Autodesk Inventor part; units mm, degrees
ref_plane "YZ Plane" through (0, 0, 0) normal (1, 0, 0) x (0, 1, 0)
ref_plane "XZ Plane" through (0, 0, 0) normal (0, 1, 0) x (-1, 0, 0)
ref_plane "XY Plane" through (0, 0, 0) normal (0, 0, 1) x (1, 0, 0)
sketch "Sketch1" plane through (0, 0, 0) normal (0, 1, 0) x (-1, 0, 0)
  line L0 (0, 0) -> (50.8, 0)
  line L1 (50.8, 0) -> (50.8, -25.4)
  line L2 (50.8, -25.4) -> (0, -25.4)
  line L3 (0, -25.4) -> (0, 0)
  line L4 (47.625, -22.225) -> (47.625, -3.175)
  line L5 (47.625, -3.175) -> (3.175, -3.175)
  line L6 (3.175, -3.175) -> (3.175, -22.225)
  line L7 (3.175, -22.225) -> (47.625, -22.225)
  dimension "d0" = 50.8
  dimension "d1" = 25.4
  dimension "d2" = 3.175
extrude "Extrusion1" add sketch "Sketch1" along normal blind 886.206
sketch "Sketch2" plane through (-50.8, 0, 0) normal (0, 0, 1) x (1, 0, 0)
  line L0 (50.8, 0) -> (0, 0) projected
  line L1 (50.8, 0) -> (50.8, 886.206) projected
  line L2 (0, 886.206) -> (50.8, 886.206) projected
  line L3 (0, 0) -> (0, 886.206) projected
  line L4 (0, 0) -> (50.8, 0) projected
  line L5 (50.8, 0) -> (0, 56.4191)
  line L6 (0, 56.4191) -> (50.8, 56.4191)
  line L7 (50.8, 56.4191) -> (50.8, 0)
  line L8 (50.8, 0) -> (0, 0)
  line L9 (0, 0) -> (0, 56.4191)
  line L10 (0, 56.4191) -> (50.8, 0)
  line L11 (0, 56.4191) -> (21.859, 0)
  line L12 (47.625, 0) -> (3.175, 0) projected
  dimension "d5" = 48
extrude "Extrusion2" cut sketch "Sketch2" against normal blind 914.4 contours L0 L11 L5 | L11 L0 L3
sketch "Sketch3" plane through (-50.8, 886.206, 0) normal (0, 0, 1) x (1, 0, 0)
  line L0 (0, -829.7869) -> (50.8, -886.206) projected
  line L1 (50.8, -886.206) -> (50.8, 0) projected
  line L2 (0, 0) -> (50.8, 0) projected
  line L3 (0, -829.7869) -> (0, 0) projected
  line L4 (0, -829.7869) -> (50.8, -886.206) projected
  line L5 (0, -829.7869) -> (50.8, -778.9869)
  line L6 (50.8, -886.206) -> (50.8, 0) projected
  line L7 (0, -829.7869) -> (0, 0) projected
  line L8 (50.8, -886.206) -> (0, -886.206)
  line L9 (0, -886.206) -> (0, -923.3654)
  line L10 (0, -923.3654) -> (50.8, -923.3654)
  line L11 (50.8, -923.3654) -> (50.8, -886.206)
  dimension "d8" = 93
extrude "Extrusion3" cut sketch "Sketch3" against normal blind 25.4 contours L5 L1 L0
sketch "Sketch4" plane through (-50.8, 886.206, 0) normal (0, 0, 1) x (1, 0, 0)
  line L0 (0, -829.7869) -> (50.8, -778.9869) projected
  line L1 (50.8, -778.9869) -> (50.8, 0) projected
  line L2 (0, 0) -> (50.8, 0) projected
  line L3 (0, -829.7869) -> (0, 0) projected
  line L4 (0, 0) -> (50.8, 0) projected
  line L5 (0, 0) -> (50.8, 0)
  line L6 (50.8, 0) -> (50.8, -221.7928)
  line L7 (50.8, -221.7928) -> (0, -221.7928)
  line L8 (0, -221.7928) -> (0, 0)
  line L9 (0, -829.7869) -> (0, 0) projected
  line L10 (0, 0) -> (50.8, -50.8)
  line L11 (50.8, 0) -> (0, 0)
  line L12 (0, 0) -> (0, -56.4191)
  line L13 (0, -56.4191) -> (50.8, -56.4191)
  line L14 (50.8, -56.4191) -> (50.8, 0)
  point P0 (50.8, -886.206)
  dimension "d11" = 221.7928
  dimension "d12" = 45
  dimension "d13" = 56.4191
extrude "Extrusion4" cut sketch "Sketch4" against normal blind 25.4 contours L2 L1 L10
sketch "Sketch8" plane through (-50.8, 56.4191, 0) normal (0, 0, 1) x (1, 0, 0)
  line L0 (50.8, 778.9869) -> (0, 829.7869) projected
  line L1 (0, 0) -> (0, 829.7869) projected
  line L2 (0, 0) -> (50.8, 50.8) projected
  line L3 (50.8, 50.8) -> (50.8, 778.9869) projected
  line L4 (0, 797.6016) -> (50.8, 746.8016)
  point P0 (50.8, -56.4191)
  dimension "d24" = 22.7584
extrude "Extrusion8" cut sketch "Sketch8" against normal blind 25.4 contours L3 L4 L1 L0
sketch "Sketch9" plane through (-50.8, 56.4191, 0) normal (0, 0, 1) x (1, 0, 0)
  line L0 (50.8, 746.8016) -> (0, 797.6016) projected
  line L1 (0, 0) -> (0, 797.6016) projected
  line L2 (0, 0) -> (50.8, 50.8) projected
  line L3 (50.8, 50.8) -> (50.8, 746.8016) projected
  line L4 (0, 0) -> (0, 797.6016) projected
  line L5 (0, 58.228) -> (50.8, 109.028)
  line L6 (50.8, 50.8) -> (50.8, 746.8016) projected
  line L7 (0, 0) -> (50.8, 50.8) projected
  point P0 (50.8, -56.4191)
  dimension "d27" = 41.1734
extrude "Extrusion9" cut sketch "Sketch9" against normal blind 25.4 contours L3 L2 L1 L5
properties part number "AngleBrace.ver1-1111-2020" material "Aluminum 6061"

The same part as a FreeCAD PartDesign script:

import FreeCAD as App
import Part
import Sketcher
from FreeCAD import Vector
Q = App.Units.Quantity

doc = App.newDocument("Part")
body = doc.addObject("PartDesign::Body", "Body")

# Sketch on XZ plane
sketch1 = body.newObject("Sketcher::SketchObject", "Sketch")
sketch1.AttachmentSupport = (doc.getObject("XZ_Plane"), [""])
sketch1.MapMode = "FlatFace"
sketch1.addGeometry(Part.LineSegment(Vector(-50.8, 0, 0), Vector(0, 0, 0)), False)
sketch1.addGeometry(Part.LineSegment(Vector(0, 0, 0), Vector(0, -25.4, 0)), False)
sketch1.addGeometry(Part.LineSegment(Vector(0, -25.4, 0), Vector(-50.8, -25.4, 0)), False)
sketch1.addGeometry(Part.LineSegment(Vector(-50.8, -25.4, 0), Vector(-50.8, 0, 0)), False)
sketch1.addGeometry(Part.LineSegment(Vector(-47.625, -3.175, 0), Vector(-47.625, -22.225, 0)), False)
sketch1.addGeometry(Part.LineSegment(Vector(-47.625, -22.225, 0), Vector(-3.175, -22.225, 0)), False)
sketch1.addGeometry(Part.LineSegment(Vector(-3.175, -22.225, 0), Vector(-3.175, -3.175, 0)), False)
sketch1.addGeometry(Part.LineSegment(Vector(-3.175, -3.175, 0), Vector(-47.625, -3.175, 0)), False)
sketch1.addConstraint(Sketcher.Constraint("Coincident", 0, 2, 1, 1))
sketch1.addConstraint(Sketcher.Constraint("Coincident", 1, 2, 2, 1))
sketch1.addConstraint(Sketcher.Constraint("Coincident", 2, 2, 3, 1))
sketch1.addConstraint(Sketcher.Constraint("Coincident", 3, 2, 0, 1))
sketch1.addConstraint(Sketcher.Constraint("Coincident", 4, 2, 5, 1))
sketch1.addConstraint(Sketcher.Constraint("Coincident", 5, 2, 6, 1))
sketch1.addConstraint(Sketcher.Constraint("Coincident", 6, 2, 7, 1))
sketch1.addConstraint(Sketcher.Constraint("Coincident", 7, 2, 4, 1))
sketch1.addConstraint(Sketcher.Constraint("Horizontal", 0))
sketch1.addConstraint(Sketcher.Constraint("Vertical", 1))
sketch1.addConstraint(Sketcher.Constraint("Horizontal", 2))
sketch1.addConstraint(Sketcher.Constraint("Vertical", 3))
sketch1.addConstraint(Sketcher.Constraint("Vertical", 4))
sketch1.addConstraint(Sketcher.Constraint("Horizontal", 5))
sketch1.addConstraint(Sketcher.Constraint("Vertical", 6))
sketch1.addConstraint(Sketcher.Constraint("Horizontal", 7))
sketch1.addConstraint(Sketcher.Constraint("Coincident", 0, 2, -1, 1))
sketch1.addConstraint(Sketcher.Constraint("DistanceX", 0, 1, 0, 2, Q("2 in")))
sketch1.addConstraint(Sketcher.Constraint("DistanceY", 1, 2, 1, 1, Q("1 in")))
sketch1.addConstraint(Sketcher.Constraint("DistanceX", 5, 2, -1, 1, Q("0.125 in")))
sketch1.addConstraint(Sketcher.Constraint("DistanceY", 6, 2, -1, 1, Q("0.125 in")))
sketch1.addConstraint(Sketcher.Constraint("DistanceX", 2, 2, 4, 2, Q("0.125 in")))
sketch1.addConstraint(Sketcher.Constraint("DistanceY", 2, 2, 4, 2, Q("0.125 in")))
pad1 = body.newObject("PartDesign::Pad", "Pad")
pad1.Profile = sketch1
pad1.Length = Q("34.89 in")
pad1.Reversed = True

# Sketch on XY plane
sketch2 = body.newObject("Sketcher::SketchObject", "Sketch001")
sketch2.AttachmentSupport = (doc.getObject("XY_Plane"), [""])
sketch2.MapMode = "FlatFace"
sketch2.addGeometry(Part.LineSegment(Vector(0, 0, 0), Vector(-50.8, 56.4191, 0)), False)
sketch2.addGeometry(Part.LineSegment(Vector(-50.8, 56.4191, 0), Vector(-50.8, 0, 0)), False)
sketch2.addGeometry(Part.LineSegment(Vector(-50.8, 0, 0), Vector(0, 0, 0)), False)
sketch2.addConstraint(Sketcher.Constraint("Coincident", 0, 2, 1, 1))
sketch2.addConstraint(Sketcher.Constraint("Coincident", 1, 2, 2, 1))
sketch2.addConstraint(Sketcher.Constraint("Coincident", 2, 2, 0, 1))
sketch2.addConstraint(Sketcher.Constraint("Vertical", 1))
sketch2.addConstraint(Sketcher.Constraint("Horizontal", 2))
sketch2.addConstraint(Sketcher.Constraint("Coincident", 2, 2, -1, 1))
sketch2.addConstraint(Sketcher.Constraint("DistanceX", 2, 1, 2, 2, Q("2 in")))
sketch2.addConstraint(Sketcher.Constraint("Angle", 0, Q("132 deg")))
pocket1 = body.newObject("PartDesign::Pocket", "Pocket")
pocket1.Profile = sketch2
pocket1.Length = Q("36 in")

# Sketch on XY plane
sketch3 = body.newObject("Sketcher::SketchObject", "Sketch002")
sketch3.AttachmentSupport = (doc.getObject("XY_Plane"), [""])
sketch3.MapMode = "FlatFace"
sketch3.addGeometry(Part.LineSegment(Vector(0, 107.2191, 0), Vector(-50.8, 56.4191, 0)), False)
sketch3.addGeometry(Part.LineSegment(Vector(-50.8, 56.4191, 0), Vector(0, 0, 0)), False)
sketch3.addGeometry(Part.LineSegment(Vector(0, 0, 0), Vector(0, 107.2191, 0)), False)
sketch3.addConstraint(Sketcher.Constraint("Coincident", 0, 2, 1, 1))
sketch3.addConstraint(Sketcher.Constraint("Coincident", 1, 2, 2, 1))
sketch3.addConstraint(Sketcher.Constraint("Coincident", 2, 2, 0, 1))
sketch3.addConstraint(Sketcher.Constraint("Vertical", 2))
sketch3.addConstraint(Sketcher.Constraint("Coincident", 1, 2, -1, 1))
sketch3.addConstraint(Sketcher.Constraint("DistanceX", 0, 2, -1, 1, Q("2 in")))
sketch3.addConstraint(Sketcher.Constraint("Angle", 0, Q("-135 deg")))
sketch3.addConstraint(Sketcher.Constraint("Angle", 1, Q("-48 deg")))
pocket2 = body.newObject("PartDesign::Pocket", "Pocket001")
pocket2.Profile = sketch3
pocket2.Length = Q("1 in")

# Sketch on XY plane
sketch4 = body.newObject("Sketcher::SketchObject", "Sketch003")
sketch4.AttachmentSupport = (doc.getObject("XY_Plane"), [""])
sketch4.MapMode = "FlatFace"
sketch4.addGeometry(Part.LineSegment(Vector(0, 886.206, 0), Vector(-50.8, 886.206, 0)), False)
sketch4.addGeometry(Part.LineSegment(Vector(-50.8, 886.206, 0), Vector(0, 835.406, 0)), False)
sketch4.addGeometry(Part.LineSegment(Vector(0, 835.406, 0), Vector(0, 886.206, 0)), False)
sketch4.addConstraint(Sketcher.Constraint("Coincident", 0, 2, 1, 1))
sketch4.addConstraint(Sketcher.Constraint("Coincident", 1, 2, 2, 1))
sketch4.addConstraint(Sketcher.Constraint("Coincident", 2, 2, 0, 1))
sketch4.addConstraint(Sketcher.Constraint("Horizontal", 0))
sketch4.addConstraint(Sketcher.Constraint("Vertical", 2))
sketch4.addConstraint(Sketcher.Constraint("PointOnObject", 1, 2, -2))
sketch4.addConstraint(Sketcher.Constraint("Equal", 0, 2))
sketch4.addConstraint(Sketcher.Constraint("DistanceX", 0, 2, 0, 1, Q("2 in")))
sketch4.addConstraint(Sketcher.Constraint("DistanceY", -1, 1, 0, 2, Q("34.89 in")))
pocket3 = body.newObject("PartDesign::Pocket", "Pocket002")
pocket3.Profile = sketch4
pocket3.Length = Q("1 in")

# Sketch on XY plane
sketch5 = body.newObject("Sketcher::SketchObject", "Sketch004")
sketch5.AttachmentSupport = (doc.getObject("XY_Plane"), [""])
sketch5.MapMode = "FlatFace"
sketch5.addGeometry(Part.LineSegment(Vector(0, 803.2207, 0), Vector(0, 835.406, 0)), False)
sketch5.addGeometry(Part.LineSegment(Vector(0, 835.406, 0), Vector(-50.8, 886.206, 0)), False)
sketch5.addGeometry(Part.LineSegment(Vector(-50.8, 886.206, 0), Vector(-50.8, 854.0207, 0)), False)
sketch5.addGeometry(Part.LineSegment(Vector(-50.8, 854.0207, 0), Vector(0, 803.2207, 0)), False)
sketch5.addConstraint(Sketcher.Constraint("Coincident", 0, 2, 1, 1))
sketch5.addConstraint(Sketcher.Constraint("Coincident", 1, 2, 2, 1))
sketch5.addConstraint(Sketcher.Constraint("Coincident", 2, 2, 3, 1))
sketch5.addConstraint(Sketcher.Constraint("Coincident", 3, 2, 0, 1))
sketch5.addConstraint(Sketcher.Constraint("Vertical", 0))
sketch5.addConstraint(Sketcher.Constraint("Vertical", 2))
sketch5.addConstraint(Sketcher.Constraint("PointOnObject", 0, 2, -2))
sketch5.addConstraint(Sketcher.Constraint("Parallel", 1, 3))
sketch5.addConstraint(Sketcher.Constraint("DistanceX", 1, 2, -1, 1, Q("2 in")))
sketch5.addConstraint(Sketcher.Constraint("Angle", 1, Q("135 deg")))
sketch5.addConstraint(Sketcher.Constraint("DistanceY", -1, 1, 0, 2, Q("32.89 in")))
sketch5.addConstraint(Sketcher.Constraint("DistanceY", 0, 1, 0, 2, 32.1853))
pocket4 = body.newObject("PartDesign::Pocket", "Pocket003")
pocket4.Profile = sketch5
pocket4.Length = Q("1 in")

# Sketch on XY plane
sketch6 = body.newObject("Sketcher::SketchObject", "Sketch005")
sketch6.AttachmentSupport = (doc.getObject("XY_Plane"), [""])
sketch6.MapMode = "FlatFace"
sketch6.addGeometry(Part.LineSegment(Vector(0, 107.2191, 0), Vector(0, 165.4471, 0)), False)
sketch6.addGeometry(Part.LineSegment(Vector(0, 165.4471, 0), Vector(-50.8, 114.6471, 0)), False)
sketch6.addGeometry(Part.LineSegment(Vector(-50.8, 114.6471, 0), Vector(-50.8, 56.4191, 0)), False)
sketch6.addGeometry(Part.LineSegment(Vector(-50.8, 56.4191, 0), Vector(0, 107.2191, 0)), False)
sketch6.addConstraint(Sketcher.Constraint("Coincident", 0, 2, 1, 1))
sketch6.addConstraint(Sketcher.Constraint("Coincident", 1, 2, 2, 1))
sketch6.addConstraint(Sketcher.Constraint("Coincident", 2, 2, 3, 1))
sketch6.addConstraint(Sketcher.Constraint("Coincident", 3, 2, 0, 1))
sketch6.addConstraint(Sketcher.Constraint("Vertical", 0))
sketch6.addConstraint(Sketcher.Constraint("Vertical", 2))
sketch6.addConstraint(Sketcher.Constraint("PointOnObject", 0, 2, -2))
sketch6.addConstraint(Sketcher.Constraint("Parallel", 1, 3))
sketch6.addConstraint(Sketcher.Constraint("DistanceX", 1, 2, -1, 1, Q("2 in")))
sketch6.addConstraint(Sketcher.Constraint("Angle", 1, Q("-135 deg")))
sketch6.addConstraint(Sketcher.Constraint("DistanceY", 0, 1, 0, 2, 58.228))
sketch6.addConstraint(Sketcher.Constraint("DistanceY", -1, 1, 0, 2, 165.447))
pocket5 = body.newObject("PartDesign::Pocket", "Pocket004")
pocket5.Profile = sketch6
pocket5.Length = Q("1 in")

doc.recompute()
